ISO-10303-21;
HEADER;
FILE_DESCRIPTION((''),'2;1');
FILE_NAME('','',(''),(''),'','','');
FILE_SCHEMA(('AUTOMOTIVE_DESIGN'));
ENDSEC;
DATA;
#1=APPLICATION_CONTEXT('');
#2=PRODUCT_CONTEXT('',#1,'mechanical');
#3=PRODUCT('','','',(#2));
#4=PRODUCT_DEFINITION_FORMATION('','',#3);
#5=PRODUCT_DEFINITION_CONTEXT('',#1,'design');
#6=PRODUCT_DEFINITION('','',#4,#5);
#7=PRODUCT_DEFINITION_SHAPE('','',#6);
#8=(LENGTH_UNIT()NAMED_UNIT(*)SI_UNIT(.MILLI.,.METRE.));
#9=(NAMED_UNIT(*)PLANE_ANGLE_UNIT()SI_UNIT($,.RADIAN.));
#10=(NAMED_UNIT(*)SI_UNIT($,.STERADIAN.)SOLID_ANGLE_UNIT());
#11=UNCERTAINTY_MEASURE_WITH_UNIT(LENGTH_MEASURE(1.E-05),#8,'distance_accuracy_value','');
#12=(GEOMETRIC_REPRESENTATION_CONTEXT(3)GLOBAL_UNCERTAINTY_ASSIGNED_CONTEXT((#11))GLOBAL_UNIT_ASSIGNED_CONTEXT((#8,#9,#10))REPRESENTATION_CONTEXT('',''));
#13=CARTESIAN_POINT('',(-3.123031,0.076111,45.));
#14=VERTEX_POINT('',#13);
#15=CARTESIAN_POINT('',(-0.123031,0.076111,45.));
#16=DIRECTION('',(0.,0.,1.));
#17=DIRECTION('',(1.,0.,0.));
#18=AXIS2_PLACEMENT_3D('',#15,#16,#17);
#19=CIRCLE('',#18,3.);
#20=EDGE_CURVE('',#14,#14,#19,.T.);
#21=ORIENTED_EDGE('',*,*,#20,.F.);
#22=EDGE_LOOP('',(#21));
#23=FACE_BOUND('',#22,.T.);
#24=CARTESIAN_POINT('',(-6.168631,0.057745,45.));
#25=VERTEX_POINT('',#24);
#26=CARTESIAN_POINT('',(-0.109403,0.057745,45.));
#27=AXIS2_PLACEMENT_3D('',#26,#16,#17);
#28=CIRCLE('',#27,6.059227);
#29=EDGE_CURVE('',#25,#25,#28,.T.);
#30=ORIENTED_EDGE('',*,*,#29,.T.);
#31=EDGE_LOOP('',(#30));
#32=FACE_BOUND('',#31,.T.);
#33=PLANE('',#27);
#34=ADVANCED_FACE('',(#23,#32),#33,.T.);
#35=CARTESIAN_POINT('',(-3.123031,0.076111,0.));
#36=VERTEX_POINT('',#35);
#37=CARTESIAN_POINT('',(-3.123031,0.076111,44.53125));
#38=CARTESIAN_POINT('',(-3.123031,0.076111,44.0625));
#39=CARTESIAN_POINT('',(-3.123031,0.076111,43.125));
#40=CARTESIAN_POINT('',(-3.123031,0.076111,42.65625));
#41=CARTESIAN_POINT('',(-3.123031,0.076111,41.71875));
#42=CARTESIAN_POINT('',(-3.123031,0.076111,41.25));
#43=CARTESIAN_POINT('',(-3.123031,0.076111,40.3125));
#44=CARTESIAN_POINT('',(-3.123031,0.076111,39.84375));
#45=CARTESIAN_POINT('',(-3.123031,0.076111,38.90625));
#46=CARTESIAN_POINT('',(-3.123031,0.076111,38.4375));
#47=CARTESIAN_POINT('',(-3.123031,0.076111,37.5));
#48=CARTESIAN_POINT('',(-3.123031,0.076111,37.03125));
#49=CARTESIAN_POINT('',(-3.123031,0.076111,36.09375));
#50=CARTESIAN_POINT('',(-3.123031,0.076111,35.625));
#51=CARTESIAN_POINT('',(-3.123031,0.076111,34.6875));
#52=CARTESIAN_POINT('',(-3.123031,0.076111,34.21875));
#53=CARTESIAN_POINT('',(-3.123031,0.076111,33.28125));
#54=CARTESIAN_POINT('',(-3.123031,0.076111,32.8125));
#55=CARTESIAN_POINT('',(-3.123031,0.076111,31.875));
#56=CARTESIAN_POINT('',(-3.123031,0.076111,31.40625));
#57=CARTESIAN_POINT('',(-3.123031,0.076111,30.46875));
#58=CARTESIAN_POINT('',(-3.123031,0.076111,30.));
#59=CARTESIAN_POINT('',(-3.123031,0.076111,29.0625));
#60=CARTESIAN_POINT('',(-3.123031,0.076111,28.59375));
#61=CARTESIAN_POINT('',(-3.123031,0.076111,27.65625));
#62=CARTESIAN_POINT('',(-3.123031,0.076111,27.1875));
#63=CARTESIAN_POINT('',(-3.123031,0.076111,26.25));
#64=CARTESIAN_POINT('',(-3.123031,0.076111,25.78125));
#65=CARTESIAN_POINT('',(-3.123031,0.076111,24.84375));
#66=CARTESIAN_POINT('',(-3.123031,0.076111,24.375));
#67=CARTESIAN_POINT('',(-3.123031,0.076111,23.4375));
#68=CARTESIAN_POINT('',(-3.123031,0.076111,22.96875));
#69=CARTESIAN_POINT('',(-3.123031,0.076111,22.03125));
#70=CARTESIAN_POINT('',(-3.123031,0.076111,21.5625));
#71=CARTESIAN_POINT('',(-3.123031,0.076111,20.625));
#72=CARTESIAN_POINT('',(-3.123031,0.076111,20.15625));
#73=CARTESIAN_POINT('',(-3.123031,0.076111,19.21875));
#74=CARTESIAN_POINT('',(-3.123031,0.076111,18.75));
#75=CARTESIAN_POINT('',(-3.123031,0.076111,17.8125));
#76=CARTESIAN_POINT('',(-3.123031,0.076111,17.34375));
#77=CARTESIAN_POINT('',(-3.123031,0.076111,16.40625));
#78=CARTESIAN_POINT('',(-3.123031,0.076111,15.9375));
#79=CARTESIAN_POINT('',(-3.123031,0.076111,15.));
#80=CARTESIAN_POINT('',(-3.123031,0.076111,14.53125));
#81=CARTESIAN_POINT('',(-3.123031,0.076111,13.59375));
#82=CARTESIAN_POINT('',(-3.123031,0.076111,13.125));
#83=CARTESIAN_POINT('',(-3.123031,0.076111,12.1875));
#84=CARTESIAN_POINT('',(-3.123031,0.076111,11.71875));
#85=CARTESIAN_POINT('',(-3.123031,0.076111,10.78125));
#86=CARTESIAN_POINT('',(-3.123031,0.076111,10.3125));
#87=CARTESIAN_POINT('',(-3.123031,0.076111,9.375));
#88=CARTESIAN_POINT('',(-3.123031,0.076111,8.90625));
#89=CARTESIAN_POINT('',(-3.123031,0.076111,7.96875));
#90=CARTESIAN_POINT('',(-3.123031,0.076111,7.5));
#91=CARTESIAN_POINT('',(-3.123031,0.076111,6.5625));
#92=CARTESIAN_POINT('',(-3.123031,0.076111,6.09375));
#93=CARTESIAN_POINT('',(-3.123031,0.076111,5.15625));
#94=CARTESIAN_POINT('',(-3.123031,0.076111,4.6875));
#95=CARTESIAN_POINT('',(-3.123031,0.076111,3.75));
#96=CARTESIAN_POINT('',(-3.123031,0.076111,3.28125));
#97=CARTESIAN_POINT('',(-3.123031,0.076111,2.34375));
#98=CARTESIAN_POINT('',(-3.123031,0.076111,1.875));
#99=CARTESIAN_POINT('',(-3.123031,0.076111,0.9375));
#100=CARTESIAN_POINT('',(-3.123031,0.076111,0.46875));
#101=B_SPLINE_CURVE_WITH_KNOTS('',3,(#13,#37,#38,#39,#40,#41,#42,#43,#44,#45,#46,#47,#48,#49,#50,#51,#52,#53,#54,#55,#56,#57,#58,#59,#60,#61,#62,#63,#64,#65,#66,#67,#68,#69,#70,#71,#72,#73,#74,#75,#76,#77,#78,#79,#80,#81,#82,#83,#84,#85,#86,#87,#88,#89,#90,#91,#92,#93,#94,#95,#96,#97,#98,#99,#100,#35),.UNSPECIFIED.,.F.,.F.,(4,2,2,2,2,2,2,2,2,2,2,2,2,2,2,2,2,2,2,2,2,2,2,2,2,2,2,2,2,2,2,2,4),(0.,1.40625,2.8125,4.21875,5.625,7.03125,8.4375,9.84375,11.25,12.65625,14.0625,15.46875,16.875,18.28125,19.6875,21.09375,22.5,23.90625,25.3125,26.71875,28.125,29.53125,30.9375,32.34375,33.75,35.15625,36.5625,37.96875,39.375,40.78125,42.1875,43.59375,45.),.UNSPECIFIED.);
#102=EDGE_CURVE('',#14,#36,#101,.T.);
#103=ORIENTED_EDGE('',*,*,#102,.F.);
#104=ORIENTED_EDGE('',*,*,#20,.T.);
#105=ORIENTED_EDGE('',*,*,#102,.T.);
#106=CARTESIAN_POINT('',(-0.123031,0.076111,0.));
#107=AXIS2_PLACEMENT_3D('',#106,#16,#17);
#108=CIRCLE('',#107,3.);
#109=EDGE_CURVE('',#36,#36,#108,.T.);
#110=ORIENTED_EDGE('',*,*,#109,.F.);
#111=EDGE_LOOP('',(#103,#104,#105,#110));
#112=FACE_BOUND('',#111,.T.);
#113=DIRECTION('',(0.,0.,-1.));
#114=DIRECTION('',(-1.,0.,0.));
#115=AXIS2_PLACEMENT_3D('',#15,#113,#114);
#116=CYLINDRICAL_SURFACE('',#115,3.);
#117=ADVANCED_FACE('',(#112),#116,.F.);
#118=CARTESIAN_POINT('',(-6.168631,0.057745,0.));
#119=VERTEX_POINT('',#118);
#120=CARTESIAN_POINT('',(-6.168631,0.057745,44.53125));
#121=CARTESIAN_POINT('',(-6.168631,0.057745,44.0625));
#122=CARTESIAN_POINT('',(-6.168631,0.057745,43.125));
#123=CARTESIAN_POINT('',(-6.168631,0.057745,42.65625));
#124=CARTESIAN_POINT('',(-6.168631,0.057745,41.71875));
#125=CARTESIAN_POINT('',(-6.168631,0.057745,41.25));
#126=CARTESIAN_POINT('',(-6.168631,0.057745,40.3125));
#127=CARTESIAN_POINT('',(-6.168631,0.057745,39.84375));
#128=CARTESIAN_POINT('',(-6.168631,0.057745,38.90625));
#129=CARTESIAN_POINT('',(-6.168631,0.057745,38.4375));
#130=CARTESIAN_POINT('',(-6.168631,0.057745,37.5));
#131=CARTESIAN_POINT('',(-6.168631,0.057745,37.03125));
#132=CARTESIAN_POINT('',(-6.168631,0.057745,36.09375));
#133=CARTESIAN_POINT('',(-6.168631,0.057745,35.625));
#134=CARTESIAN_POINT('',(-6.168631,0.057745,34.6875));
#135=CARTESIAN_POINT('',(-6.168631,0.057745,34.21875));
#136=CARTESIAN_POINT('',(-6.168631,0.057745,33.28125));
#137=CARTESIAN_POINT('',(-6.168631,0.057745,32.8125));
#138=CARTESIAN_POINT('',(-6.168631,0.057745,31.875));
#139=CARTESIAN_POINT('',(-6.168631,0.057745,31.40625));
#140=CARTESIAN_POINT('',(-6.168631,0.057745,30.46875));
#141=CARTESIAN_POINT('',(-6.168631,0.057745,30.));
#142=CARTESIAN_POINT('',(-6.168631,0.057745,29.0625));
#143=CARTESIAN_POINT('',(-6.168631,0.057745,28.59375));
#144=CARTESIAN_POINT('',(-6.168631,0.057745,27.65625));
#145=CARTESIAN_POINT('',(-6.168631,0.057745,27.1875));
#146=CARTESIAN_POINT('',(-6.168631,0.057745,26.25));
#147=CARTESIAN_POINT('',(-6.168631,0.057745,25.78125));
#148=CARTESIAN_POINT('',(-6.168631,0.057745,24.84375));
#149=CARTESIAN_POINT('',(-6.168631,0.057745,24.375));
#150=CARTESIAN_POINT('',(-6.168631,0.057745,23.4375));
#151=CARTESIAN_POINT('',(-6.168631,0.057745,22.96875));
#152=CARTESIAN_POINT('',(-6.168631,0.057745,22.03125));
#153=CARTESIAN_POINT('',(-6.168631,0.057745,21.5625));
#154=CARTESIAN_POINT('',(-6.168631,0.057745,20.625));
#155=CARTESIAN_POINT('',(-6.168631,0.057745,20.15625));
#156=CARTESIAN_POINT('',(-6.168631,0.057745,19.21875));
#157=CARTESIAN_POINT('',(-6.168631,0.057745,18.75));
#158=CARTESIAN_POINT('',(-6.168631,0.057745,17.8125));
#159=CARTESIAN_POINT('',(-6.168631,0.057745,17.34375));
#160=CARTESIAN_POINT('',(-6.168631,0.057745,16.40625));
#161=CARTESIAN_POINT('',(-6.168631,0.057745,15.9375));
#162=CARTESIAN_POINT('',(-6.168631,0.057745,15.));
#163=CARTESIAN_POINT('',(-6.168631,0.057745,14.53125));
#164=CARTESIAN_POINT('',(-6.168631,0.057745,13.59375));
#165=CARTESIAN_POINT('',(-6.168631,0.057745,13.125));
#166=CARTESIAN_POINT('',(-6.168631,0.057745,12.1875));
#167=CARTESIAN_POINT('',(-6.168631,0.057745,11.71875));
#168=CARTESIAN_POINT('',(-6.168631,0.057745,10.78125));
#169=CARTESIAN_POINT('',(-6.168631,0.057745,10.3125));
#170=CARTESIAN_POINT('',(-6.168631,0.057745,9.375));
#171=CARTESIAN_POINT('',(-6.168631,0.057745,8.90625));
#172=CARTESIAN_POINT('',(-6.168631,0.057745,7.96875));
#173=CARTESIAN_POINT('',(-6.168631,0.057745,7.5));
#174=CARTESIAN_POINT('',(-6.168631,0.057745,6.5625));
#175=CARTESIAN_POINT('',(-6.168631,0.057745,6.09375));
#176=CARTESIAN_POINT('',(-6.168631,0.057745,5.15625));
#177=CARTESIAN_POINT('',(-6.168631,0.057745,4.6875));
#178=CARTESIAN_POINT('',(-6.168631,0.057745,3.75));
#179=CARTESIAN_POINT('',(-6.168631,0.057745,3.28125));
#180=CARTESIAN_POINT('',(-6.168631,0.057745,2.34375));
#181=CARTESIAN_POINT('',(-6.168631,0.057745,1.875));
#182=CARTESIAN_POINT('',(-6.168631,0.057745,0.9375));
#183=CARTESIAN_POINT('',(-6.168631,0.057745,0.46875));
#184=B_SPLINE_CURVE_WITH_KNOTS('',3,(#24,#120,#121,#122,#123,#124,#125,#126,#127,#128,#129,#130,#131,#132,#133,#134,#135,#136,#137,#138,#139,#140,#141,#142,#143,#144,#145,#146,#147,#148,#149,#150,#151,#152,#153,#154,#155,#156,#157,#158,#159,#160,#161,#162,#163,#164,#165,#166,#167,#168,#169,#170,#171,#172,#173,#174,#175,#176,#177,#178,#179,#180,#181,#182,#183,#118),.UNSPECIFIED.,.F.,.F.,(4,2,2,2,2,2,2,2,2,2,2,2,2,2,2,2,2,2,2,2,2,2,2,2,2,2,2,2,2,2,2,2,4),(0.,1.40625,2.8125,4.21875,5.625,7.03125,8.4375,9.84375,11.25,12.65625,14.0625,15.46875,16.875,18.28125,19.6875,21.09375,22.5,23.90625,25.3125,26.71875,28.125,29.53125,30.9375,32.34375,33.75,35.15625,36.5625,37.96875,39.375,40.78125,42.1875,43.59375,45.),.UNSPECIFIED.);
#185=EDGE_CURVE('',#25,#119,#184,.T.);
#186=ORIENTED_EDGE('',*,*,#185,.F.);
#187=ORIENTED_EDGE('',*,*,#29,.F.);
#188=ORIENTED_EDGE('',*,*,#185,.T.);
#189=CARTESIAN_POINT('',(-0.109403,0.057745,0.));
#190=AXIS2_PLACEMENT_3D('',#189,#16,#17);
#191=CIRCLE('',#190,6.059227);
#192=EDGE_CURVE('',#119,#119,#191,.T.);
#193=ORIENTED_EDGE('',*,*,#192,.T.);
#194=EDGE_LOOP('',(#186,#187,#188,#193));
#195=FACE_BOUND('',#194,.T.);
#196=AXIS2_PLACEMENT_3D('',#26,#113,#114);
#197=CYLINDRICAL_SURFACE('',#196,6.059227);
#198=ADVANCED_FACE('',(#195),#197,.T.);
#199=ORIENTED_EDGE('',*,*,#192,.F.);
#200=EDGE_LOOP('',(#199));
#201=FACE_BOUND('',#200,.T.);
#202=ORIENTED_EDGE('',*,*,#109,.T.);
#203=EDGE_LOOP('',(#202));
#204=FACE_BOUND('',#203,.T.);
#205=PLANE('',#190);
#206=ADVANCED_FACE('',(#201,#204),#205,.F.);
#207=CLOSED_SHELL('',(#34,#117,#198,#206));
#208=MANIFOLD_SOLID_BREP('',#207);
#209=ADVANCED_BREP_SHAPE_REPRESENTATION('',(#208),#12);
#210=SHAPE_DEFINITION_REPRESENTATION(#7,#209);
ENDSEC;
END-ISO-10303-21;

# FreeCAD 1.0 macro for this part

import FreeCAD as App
import Part
import Sketcher

doc = App.newDocument("Part")
body = doc.addObject("PartDesign::Body", "Body")

# Sketch on XY plane
sketch1 = body.newObject("Sketcher::SketchObject", "Sketch")
sketch1.AttachmentSupport = (doc.getObject("XY_Plane"), [""])
sketch1.MapMode = "FlatFace"
sketch1.addGeometry(Part.Circle(App.Vector(-0.1, 0.1, 0), App.Vector(0, 0, 1), 6.1), False)
sketch1.addGeometry(Part.Circle(App.Vector(-0.1, 0.1, 0), App.Vector(0, 0, 1), 3), False)
sketch1.addConstraint(Sketcher.Constraint("Diameter", 1, 6.0))
sketch1.addConstraint(Sketcher.Constraint("Diameter", 0, 12.118455))
sketch1.addConstraint(Sketcher.Constraint("DistanceX", 1, 3, -1, 1, 0.123031))
sketch1.addConstraint(Sketcher.Constraint("DistanceY", -1, 1, 1, 3, 0.076111))
sketch1.addConstraint(Sketcher.Constraint("DistanceX", 1, 3, 0, 3, 0.013628))
sketch1.addConstraint(Sketcher.Constraint("DistanceY", -1, 1, 0, 3, 0.057745))
pad1 = body.newObject("PartDesign::Pad", "Pad")
pad1.Profile = sketch1
pad1.Length = 45

doc.recompute()
